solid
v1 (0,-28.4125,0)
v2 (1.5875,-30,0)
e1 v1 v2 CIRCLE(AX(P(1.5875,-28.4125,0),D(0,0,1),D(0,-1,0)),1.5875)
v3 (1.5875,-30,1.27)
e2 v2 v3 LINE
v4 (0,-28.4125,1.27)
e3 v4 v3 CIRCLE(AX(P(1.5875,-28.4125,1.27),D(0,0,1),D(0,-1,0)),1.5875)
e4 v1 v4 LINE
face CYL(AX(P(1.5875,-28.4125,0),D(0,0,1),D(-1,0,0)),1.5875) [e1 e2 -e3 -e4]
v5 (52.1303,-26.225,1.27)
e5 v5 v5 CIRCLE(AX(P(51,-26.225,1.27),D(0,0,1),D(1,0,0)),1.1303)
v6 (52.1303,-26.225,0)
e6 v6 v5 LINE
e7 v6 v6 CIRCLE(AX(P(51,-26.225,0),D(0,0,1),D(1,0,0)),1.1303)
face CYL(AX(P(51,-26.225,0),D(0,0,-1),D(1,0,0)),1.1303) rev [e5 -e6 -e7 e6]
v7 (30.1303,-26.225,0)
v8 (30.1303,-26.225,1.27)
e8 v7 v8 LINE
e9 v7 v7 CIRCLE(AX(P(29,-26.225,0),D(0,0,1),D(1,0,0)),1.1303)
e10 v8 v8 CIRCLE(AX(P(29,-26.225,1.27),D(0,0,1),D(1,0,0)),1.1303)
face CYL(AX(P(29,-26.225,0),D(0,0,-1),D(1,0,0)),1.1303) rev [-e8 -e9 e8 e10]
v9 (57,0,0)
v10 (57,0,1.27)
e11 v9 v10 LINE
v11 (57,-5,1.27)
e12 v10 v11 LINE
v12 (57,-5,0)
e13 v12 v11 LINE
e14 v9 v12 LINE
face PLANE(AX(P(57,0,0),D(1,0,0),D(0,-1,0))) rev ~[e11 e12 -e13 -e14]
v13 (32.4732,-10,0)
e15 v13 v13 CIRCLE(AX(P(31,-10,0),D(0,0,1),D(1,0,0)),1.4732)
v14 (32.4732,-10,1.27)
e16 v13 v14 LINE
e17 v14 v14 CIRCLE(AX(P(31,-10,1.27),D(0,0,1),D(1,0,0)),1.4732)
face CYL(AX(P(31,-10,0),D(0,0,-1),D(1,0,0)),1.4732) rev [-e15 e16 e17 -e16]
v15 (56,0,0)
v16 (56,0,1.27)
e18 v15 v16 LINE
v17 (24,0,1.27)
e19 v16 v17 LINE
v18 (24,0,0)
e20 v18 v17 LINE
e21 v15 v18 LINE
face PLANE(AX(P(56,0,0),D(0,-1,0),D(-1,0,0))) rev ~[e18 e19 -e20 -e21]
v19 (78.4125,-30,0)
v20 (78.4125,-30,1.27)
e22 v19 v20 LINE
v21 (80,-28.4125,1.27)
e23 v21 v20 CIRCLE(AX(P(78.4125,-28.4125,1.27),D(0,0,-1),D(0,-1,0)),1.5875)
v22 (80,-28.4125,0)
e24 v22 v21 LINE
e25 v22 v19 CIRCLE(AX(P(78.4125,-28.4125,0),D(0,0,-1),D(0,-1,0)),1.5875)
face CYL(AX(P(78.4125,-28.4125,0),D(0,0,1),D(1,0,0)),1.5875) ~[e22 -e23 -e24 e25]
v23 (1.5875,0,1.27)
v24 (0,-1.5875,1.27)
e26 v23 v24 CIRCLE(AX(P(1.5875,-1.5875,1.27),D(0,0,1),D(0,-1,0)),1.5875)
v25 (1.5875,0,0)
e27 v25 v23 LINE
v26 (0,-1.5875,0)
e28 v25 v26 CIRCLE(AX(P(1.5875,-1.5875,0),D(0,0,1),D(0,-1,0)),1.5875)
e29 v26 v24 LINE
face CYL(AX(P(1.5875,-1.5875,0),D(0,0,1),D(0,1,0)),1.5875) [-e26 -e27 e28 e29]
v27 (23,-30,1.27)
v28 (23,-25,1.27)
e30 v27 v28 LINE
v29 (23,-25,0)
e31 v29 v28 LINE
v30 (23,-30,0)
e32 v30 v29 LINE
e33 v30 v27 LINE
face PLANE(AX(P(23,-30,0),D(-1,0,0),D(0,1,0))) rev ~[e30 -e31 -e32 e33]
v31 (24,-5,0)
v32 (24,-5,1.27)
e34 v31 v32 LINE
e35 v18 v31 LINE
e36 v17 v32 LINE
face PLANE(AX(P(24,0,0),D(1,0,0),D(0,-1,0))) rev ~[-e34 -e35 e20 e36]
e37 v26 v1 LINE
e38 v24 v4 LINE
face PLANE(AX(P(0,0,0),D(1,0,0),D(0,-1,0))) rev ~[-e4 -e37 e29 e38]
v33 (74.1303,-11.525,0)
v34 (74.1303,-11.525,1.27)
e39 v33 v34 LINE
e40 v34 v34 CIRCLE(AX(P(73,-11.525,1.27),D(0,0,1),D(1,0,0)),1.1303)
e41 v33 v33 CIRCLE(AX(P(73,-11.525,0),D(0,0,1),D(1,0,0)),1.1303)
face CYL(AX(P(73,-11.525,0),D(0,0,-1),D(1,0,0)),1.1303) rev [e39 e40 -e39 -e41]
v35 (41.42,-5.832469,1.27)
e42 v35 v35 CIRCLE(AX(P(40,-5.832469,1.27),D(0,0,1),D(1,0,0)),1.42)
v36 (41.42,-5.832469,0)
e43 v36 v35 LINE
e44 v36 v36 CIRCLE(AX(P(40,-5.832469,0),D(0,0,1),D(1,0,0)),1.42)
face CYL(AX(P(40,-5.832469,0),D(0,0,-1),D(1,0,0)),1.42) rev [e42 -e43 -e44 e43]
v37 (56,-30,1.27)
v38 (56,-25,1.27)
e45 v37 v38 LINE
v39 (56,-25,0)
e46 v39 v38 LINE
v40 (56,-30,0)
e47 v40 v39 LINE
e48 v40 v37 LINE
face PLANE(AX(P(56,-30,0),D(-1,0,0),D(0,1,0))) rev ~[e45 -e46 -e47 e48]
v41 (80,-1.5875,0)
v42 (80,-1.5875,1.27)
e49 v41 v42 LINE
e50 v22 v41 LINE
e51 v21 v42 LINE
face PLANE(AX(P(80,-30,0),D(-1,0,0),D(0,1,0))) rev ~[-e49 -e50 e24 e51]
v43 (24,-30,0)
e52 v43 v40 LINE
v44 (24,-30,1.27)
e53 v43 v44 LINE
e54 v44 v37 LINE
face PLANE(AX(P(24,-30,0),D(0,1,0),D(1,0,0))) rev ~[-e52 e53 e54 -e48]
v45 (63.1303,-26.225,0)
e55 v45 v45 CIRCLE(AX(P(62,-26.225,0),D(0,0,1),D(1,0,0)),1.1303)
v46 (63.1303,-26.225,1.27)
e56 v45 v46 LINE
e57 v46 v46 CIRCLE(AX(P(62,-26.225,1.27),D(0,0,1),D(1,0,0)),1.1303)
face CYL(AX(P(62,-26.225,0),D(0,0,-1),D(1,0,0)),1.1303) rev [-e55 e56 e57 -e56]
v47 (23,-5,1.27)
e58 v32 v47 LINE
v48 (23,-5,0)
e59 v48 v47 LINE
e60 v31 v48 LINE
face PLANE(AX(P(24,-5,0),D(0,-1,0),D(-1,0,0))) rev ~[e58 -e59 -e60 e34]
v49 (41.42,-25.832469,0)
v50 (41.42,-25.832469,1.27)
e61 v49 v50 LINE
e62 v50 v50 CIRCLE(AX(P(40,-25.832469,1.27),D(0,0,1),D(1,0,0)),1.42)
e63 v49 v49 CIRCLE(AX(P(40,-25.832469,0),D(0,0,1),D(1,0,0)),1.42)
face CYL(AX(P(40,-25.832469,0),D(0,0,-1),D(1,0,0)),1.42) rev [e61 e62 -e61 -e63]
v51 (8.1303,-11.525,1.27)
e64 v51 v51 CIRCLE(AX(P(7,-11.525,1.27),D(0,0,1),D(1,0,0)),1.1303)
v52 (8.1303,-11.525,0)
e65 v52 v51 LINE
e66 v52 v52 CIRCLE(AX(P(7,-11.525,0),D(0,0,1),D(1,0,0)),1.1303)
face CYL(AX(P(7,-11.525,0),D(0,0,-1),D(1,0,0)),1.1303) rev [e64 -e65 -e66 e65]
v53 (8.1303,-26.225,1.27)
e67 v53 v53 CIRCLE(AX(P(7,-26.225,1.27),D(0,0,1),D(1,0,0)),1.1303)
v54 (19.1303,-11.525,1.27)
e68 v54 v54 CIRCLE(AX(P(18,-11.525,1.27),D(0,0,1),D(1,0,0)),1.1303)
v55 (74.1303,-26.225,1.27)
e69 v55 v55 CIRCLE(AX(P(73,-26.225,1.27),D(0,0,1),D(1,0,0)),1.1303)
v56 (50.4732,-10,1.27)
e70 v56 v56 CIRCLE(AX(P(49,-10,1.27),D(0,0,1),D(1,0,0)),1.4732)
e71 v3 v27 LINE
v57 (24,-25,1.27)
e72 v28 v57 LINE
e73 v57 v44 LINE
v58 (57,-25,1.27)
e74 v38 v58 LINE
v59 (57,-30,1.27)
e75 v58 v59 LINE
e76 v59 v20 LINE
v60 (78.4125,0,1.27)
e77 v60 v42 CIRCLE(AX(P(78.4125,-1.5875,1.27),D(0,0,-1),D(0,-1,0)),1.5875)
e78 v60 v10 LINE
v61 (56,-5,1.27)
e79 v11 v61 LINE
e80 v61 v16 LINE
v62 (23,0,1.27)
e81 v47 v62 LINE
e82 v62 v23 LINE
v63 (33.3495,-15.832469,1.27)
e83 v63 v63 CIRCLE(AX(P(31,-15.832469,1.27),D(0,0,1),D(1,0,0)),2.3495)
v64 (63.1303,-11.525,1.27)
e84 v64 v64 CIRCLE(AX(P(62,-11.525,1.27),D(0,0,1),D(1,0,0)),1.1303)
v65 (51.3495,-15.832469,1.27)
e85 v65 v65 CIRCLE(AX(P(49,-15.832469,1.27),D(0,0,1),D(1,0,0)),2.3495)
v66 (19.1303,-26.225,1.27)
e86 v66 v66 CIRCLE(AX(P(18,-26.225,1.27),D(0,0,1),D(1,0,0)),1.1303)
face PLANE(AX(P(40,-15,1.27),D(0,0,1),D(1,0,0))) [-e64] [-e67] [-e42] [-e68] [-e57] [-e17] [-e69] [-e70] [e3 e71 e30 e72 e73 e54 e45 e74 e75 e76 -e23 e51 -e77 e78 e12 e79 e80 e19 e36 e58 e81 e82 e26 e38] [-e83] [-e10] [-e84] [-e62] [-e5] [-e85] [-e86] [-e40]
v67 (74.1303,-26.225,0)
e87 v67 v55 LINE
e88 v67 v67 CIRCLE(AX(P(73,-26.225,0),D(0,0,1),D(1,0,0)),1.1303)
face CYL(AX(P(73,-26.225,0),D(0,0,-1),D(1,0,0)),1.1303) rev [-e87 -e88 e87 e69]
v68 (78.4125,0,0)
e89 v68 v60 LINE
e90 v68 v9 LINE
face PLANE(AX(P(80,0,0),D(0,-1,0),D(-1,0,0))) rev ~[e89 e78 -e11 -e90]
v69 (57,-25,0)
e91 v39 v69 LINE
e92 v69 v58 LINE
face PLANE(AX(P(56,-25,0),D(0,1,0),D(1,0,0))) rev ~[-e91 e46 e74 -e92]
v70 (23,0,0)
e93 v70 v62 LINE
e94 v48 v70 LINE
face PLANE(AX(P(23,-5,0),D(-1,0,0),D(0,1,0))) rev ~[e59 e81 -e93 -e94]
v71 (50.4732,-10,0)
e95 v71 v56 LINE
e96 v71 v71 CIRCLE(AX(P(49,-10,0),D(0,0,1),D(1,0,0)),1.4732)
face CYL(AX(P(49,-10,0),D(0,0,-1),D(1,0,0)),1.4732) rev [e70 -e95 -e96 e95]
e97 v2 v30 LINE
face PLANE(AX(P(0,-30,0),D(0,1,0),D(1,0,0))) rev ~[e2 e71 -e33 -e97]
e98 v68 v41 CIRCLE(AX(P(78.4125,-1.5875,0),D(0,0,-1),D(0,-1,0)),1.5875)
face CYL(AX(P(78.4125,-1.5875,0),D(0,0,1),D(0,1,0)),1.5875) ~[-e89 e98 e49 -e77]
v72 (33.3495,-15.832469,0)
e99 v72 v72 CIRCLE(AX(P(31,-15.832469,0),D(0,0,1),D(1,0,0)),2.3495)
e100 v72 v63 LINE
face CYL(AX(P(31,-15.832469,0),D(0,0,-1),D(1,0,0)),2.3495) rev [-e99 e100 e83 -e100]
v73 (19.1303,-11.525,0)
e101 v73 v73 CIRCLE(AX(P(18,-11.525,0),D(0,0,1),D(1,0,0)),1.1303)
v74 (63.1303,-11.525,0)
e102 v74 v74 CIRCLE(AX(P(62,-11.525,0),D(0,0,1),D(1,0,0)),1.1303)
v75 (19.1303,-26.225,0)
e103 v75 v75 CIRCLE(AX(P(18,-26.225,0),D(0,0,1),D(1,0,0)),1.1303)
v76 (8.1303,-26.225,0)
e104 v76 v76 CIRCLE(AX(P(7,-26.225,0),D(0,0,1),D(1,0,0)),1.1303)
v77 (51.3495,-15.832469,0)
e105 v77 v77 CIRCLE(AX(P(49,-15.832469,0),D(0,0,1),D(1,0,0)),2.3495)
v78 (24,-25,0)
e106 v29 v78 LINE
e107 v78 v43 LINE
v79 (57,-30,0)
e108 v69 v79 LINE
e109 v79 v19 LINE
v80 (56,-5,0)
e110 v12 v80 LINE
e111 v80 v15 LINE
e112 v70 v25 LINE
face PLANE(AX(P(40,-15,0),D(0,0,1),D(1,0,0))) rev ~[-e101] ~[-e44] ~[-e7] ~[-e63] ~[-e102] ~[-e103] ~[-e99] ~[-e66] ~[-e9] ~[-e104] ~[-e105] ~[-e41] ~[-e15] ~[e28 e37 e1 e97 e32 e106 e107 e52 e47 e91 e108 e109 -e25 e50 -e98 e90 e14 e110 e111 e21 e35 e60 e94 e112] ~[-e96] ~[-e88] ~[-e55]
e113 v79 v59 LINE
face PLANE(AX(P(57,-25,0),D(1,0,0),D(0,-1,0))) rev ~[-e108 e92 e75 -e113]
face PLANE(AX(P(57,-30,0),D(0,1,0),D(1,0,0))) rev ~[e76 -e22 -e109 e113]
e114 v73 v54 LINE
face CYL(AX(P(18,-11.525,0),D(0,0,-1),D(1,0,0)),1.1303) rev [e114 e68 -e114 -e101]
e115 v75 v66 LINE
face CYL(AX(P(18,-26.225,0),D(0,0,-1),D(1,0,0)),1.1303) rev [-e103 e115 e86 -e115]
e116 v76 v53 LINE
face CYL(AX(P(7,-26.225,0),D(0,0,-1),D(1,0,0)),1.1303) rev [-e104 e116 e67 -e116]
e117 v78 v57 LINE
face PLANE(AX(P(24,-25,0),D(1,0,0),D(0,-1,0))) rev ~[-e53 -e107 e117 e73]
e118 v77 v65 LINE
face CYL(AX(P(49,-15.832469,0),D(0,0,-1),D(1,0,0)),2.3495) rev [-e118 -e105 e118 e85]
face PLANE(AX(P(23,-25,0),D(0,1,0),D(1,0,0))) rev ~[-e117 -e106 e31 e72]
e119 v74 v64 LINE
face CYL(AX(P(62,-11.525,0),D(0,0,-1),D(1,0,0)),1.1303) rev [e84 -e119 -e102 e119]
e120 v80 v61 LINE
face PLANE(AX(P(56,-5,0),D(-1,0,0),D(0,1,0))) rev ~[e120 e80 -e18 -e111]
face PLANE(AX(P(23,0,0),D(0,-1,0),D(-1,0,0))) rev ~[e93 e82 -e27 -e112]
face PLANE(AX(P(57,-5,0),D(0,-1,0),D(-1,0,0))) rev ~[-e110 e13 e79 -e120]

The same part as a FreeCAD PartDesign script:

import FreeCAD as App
import Part
import Sketcher
Q = App.Units.Quantity


def edges_at(feature, points):
    """Names of the edges that pass closest to the given points."""
    edges = feature.Shape.Edges
    near = lambda p: min(range(len(edges)), key=lambda i: edges[i].distToShape(Part.Vertex(*p))[0])
    return sorted({f"Edge{near(p) + 1}" for p in points})


def add_polygon(sketch, points):
    """Adds a closed chain of lines whose ends are joined by coincident constraints."""
    first, n = sketch.GeometryCount, len(points)
    for a, b in zip(points, points[1:] + points[:1]):
        sketch.addGeometry(Part.LineSegment(App.Vector(*a, 0), App.Vector(*b, 0)), False)
    for i in range(n):
        sketch.addConstraint(Sketcher.Constraint("Coincident", first + i, 2, first + (i + 1) % n, 1))

doc = App.newDocument("Part")
body = doc.addObject("PartDesign::Body", "Body")

sketch1 = body.newObject("Sketcher::SketchObject", "Sketch")
sketch1.AttachmentSupport = (doc.getObject("XY_Plane"), [""])
sketch1.MapMode = "FlatFace"
add_polygon(sketch1, [(23, 0), (0, 0), (0, -30), (23, -30), (23, -25), (24, -25), (24, -30), (56, -30), (56, -25), (57, -25), (57, -30), (80, -30), (80, 0), (57, 0), (57, -5), (56, -5), (56, 0), (24, 0), (24, -5), (23, -5)])
sketch1.addGeometry(Part.Circle(App.Vector(7, -26.2, 0), App.Vector(0, 0, 1), 1.1), False)
sketch1.addGeometry(Part.Circle(App.Vector(18, -26.2, 0), App.Vector(0, 0, 1), 1.1), False)
sketch1.addGeometry(Part.Circle(App.Vector(29, -26.2, 0), App.Vector(0, 0, 1), 1.1), False)
sketch1.addGeometry(Part.Circle(App.Vector(40, -25.8, 0), App.Vector(0, 0, 1), 1.4), False)
sketch1.addGeometry(Part.Circle(App.Vector(51, -26.2, 0), App.Vector(0, 0, 1), 1.1), False)
sketch1.addGeometry(Part.Circle(App.Vector(62, -26.2, 0), App.Vector(0, 0, 1), 1.1), False)
sketch1.addGeometry(Part.Circle(App.Vector(73, -26.2, 0), App.Vector(0, 0, 1), 1.1), False)
sketch1.addGeometry(Part.Circle(App.Vector(7, -11.5, 0), App.Vector(0, 0, 1), 1.1), False)
sketch1.addGeometry(Part.Circle(App.Vector(18, -11.5, 0), App.Vector(0, 0, 1), 1.1), False)
sketch1.addGeometry(Part.Circle(App.Vector(31, -15.8, 0), App.Vector(0, 0, 1), 2.3), False)
sketch1.addGeometry(Part.Circle(App.Vector(31, -10, 0), App.Vector(0, 0, 1), 1.5), False)
sketch1.addGeometry(Part.Circle(App.Vector(40, -5.8, 0), App.Vector(0, 0, 1), 1.4), False)
sketch1.addGeometry(Part.Circle(App.Vector(49, -15.8, 0), App.Vector(0, 0, 1), 2.3), False)
sketch1.addGeometry(Part.Circle(App.Vector(62, -11.5, 0), App.Vector(0, 0, 1), 1.1), False)
sketch1.addGeometry(Part.Circle(App.Vector(73, -11.5, 0), App.Vector(0, 0, 1), 1.1), False)
sketch1.addGeometry(Part.Circle(App.Vector(49, -10, 0), App.Vector(0, 0, 1), 1.5), False)
sketch1.addConstraint([
    Sketcher.Constraint("Horizontal", 0),
    Sketcher.Constraint("Vertical", 1),
    Sketcher.Constraint("Horizontal", 2),
    Sketcher.Constraint("Vertical", 3),
    Sketcher.Constraint("Horizontal", 4),
    Sketcher.Constraint("Vertical", 5),
    Sketcher.Constraint("Horizontal", 6),
    Sketcher.Constraint("Vertical", 7),
    Sketcher.Constraint("Horizontal", 8),
    Sketcher.Constraint("Vertical", 9),
    Sketcher.Constraint("Horizontal", 10),
    Sketcher.Constraint("Vertical", 11),
    Sketcher.Constraint("Horizontal", 12),
    Sketcher.Constraint("Vertical", 13),
    Sketcher.Constraint("Horizontal", 14),
    Sketcher.Constraint("Vertical", 15),
    Sketcher.Constraint("Horizontal", 16),
    Sketcher.Constraint("Vertical", 17),
    Sketcher.Constraint("Horizontal", 18),
    Sketcher.Constraint("Vertical", 19),
    Sketcher.Constraint("Coincident", 0, 2, -1, 1),
    Sketcher.Constraint("Equal", 20, 21),
    Sketcher.Constraint("Equal", 21, 22),
    Sketcher.Constraint("Equal", 22, 24),
    Sketcher.Constraint("Equal", 24, 25),
    Sketcher.Constraint("Equal", 25, 26),
    Sketcher.Constraint("Equal", 26, 27),
    Sketcher.Constraint("Equal", 27, 28),
    Sketcher.Constraint("Equal", 23, 31),
    Sketcher.Constraint("Equal", 29, 32),
    Sketcher.Constraint("Equal", 28, 33),
    Sketcher.Constraint("Equal", 33, 34),
    Sketcher.Constraint("Equal", 30, 35),
    Sketcher.Constraint("PointOnObject", 11, 2, -1),
    Sketcher.Constraint("PointOnObject", 15, 2, -1),
    Sketcher.Constraint("Horizontal", 20, 3, 21, 3),
    Sketcher.Constraint("Horizontal", 21, 3, 22, 3),
    Sketcher.Constraint("Horizontal", 22, 3, 24, 3),
    Sketcher.Constraint("Horizontal", 24, 3, 25, 3),
    Sketcher.Constraint("Horizontal", 25, 3, 26, 3),
    Sketcher.Constraint("Horizontal", 27, 3, 28, 3),
    Sketcher.Constraint("Horizontal", 29, 3, 32, 3),
    Sketcher.Constraint("Horizontal", 28, 3, 33, 3),
    Sketcher.Constraint("Horizontal", 33, 3, 34, 3),
    Sketcher.Constraint("Horizontal", 30, 3, 35, 3),
    Sketcher.Constraint("Horizontal", 2, 2, 5, 2),
    Sketcher.Constraint("Horizontal", 4, 2, 7, 2),
    Sketcher.Constraint("Horizontal", 6, 2, 9, 2),
    Sketcher.Constraint("Horizontal", 14, 2, 17, 2),
    Sketcher.Constraint("Vertical", 20, 3, 27, 3),
    Sketcher.Constraint("Vertical", 21, 3, 28, 3),
    Sketcher.Constraint("Vertical", 29, 3, 30, 3),
    Sketcher.Constraint("Vertical", 23, 3, 31, 3),
    Sketcher.Constraint("Vertical", 25, 3, 33, 3),
    Sketcher.Constraint("Vertical", 26, 3, 34, 3),
    Sketcher.Constraint("Vertical", 32, 3, 35, 3),
    Sketcher.Constraint("Vertical", 9, 2, 12, 2),
    Sketcher.Constraint("Vertical", 7, 2, 14, 2),
    Sketcher.Constraint("Vertical", 5, 2, 16, 2),
    Sketcher.Constraint("Vertical", 3, 2, 18, 2),
    Sketcher.Constraint("Equal", 4, 8),
    Sketcher.Constraint("Equal", 2, 10),
    Sketcher.Constraint("Equal", 9, 13),
    Sketcher.Constraint("Diameter", 23, Q("2.84 mm")),
    Sketcher.Constraint("DistanceX", 0, 2, 0, 1, Q("23 mm")),
    Sketcher.Constraint("DistanceX", 4, 1, 4, 2, Q("1 mm")),
    Sketcher.Constraint("DistanceX", 6, 1, 6, 2, Q("32 mm")),
    Sketcher.Constraint("DistanceY", 1, 2, 1, 1, Q("30 mm")),
    Sketcher.Constraint("DistanceY", 3, 1, 3, 2, Q("5 mm")),
    Sketcher.Constraint("Diameter", 29, Q("4.699 mm")),
    Sketcher.Constraint("DistanceX", -1, 1, 20, 3, Q("7 mm")),
    Sketcher.Constraint("DistanceX", -1, 1, 21, 3, Q("18 mm")),
    Sketcher.Constraint("DistanceX", -1, 1, 22, 3, Q("29 mm")),
    Sketcher.Constraint("DistanceX", -1, 1, 23, 3, Q("40 mm")),
    Sketcher.Constraint("DistanceX", -1, 1, 24, 3, Q("51 mm")),
    Sketcher.Constraint("DistanceX", -1, 1, 25, 3, Q("62 mm")),
    Sketcher.Constraint("DistanceX", -1, 1, 26, 3, Q("73 mm")),
    Sketcher.Constraint("DistanceX", -1, 1, 29, 3, Q("31 mm")),
    Sketcher.Constraint("DistanceY", 30, 3, -1, 1, Q("10 mm")),
    Sketcher.Constraint("DistanceX", -1, 1, 32, 3, Q("49 mm")),
    Sketcher.Constraint("DistanceY", 23, 3, 29, 3, Q("10 mm")),
    Sketcher.Constraint("DistanceY", 29, 3, 31, 3, Q("10 mm")),
    Sketcher.Constraint("Diameter", 20, Q("2.2606 mm")),
    Sketcher.Constraint("Diameter", 30, Q("2.9464 mm")),
    Sketcher.Constraint("DistanceY", 20, 3, 27, 3, Q("14.7 mm")),
    Sketcher.Constraint("DistanceY", 20, 3, -1, 1, Q("26.225 mm")),
    Sketcher.Constraint("DistanceY", 23, 3, -1, 1, Q("25.832469 mm")),
])
pad1 = body.newObject("PartDesign::Pad", "Pad")
pad1.Profile = sketch1
pad1.Length = 1.27
doc.recompute()

fillet = body.newObject("PartDesign::Fillet", "Fillet")
fillet.Base = (pad1, edges_at(pad1, [
    (0, -30, 0.635),
    (0, 0, 0.635),
    (80, 0, 0.635),
    (80, -30, 0.635),
]))
fillet.Radius = 1.5875

doc.recompute()
